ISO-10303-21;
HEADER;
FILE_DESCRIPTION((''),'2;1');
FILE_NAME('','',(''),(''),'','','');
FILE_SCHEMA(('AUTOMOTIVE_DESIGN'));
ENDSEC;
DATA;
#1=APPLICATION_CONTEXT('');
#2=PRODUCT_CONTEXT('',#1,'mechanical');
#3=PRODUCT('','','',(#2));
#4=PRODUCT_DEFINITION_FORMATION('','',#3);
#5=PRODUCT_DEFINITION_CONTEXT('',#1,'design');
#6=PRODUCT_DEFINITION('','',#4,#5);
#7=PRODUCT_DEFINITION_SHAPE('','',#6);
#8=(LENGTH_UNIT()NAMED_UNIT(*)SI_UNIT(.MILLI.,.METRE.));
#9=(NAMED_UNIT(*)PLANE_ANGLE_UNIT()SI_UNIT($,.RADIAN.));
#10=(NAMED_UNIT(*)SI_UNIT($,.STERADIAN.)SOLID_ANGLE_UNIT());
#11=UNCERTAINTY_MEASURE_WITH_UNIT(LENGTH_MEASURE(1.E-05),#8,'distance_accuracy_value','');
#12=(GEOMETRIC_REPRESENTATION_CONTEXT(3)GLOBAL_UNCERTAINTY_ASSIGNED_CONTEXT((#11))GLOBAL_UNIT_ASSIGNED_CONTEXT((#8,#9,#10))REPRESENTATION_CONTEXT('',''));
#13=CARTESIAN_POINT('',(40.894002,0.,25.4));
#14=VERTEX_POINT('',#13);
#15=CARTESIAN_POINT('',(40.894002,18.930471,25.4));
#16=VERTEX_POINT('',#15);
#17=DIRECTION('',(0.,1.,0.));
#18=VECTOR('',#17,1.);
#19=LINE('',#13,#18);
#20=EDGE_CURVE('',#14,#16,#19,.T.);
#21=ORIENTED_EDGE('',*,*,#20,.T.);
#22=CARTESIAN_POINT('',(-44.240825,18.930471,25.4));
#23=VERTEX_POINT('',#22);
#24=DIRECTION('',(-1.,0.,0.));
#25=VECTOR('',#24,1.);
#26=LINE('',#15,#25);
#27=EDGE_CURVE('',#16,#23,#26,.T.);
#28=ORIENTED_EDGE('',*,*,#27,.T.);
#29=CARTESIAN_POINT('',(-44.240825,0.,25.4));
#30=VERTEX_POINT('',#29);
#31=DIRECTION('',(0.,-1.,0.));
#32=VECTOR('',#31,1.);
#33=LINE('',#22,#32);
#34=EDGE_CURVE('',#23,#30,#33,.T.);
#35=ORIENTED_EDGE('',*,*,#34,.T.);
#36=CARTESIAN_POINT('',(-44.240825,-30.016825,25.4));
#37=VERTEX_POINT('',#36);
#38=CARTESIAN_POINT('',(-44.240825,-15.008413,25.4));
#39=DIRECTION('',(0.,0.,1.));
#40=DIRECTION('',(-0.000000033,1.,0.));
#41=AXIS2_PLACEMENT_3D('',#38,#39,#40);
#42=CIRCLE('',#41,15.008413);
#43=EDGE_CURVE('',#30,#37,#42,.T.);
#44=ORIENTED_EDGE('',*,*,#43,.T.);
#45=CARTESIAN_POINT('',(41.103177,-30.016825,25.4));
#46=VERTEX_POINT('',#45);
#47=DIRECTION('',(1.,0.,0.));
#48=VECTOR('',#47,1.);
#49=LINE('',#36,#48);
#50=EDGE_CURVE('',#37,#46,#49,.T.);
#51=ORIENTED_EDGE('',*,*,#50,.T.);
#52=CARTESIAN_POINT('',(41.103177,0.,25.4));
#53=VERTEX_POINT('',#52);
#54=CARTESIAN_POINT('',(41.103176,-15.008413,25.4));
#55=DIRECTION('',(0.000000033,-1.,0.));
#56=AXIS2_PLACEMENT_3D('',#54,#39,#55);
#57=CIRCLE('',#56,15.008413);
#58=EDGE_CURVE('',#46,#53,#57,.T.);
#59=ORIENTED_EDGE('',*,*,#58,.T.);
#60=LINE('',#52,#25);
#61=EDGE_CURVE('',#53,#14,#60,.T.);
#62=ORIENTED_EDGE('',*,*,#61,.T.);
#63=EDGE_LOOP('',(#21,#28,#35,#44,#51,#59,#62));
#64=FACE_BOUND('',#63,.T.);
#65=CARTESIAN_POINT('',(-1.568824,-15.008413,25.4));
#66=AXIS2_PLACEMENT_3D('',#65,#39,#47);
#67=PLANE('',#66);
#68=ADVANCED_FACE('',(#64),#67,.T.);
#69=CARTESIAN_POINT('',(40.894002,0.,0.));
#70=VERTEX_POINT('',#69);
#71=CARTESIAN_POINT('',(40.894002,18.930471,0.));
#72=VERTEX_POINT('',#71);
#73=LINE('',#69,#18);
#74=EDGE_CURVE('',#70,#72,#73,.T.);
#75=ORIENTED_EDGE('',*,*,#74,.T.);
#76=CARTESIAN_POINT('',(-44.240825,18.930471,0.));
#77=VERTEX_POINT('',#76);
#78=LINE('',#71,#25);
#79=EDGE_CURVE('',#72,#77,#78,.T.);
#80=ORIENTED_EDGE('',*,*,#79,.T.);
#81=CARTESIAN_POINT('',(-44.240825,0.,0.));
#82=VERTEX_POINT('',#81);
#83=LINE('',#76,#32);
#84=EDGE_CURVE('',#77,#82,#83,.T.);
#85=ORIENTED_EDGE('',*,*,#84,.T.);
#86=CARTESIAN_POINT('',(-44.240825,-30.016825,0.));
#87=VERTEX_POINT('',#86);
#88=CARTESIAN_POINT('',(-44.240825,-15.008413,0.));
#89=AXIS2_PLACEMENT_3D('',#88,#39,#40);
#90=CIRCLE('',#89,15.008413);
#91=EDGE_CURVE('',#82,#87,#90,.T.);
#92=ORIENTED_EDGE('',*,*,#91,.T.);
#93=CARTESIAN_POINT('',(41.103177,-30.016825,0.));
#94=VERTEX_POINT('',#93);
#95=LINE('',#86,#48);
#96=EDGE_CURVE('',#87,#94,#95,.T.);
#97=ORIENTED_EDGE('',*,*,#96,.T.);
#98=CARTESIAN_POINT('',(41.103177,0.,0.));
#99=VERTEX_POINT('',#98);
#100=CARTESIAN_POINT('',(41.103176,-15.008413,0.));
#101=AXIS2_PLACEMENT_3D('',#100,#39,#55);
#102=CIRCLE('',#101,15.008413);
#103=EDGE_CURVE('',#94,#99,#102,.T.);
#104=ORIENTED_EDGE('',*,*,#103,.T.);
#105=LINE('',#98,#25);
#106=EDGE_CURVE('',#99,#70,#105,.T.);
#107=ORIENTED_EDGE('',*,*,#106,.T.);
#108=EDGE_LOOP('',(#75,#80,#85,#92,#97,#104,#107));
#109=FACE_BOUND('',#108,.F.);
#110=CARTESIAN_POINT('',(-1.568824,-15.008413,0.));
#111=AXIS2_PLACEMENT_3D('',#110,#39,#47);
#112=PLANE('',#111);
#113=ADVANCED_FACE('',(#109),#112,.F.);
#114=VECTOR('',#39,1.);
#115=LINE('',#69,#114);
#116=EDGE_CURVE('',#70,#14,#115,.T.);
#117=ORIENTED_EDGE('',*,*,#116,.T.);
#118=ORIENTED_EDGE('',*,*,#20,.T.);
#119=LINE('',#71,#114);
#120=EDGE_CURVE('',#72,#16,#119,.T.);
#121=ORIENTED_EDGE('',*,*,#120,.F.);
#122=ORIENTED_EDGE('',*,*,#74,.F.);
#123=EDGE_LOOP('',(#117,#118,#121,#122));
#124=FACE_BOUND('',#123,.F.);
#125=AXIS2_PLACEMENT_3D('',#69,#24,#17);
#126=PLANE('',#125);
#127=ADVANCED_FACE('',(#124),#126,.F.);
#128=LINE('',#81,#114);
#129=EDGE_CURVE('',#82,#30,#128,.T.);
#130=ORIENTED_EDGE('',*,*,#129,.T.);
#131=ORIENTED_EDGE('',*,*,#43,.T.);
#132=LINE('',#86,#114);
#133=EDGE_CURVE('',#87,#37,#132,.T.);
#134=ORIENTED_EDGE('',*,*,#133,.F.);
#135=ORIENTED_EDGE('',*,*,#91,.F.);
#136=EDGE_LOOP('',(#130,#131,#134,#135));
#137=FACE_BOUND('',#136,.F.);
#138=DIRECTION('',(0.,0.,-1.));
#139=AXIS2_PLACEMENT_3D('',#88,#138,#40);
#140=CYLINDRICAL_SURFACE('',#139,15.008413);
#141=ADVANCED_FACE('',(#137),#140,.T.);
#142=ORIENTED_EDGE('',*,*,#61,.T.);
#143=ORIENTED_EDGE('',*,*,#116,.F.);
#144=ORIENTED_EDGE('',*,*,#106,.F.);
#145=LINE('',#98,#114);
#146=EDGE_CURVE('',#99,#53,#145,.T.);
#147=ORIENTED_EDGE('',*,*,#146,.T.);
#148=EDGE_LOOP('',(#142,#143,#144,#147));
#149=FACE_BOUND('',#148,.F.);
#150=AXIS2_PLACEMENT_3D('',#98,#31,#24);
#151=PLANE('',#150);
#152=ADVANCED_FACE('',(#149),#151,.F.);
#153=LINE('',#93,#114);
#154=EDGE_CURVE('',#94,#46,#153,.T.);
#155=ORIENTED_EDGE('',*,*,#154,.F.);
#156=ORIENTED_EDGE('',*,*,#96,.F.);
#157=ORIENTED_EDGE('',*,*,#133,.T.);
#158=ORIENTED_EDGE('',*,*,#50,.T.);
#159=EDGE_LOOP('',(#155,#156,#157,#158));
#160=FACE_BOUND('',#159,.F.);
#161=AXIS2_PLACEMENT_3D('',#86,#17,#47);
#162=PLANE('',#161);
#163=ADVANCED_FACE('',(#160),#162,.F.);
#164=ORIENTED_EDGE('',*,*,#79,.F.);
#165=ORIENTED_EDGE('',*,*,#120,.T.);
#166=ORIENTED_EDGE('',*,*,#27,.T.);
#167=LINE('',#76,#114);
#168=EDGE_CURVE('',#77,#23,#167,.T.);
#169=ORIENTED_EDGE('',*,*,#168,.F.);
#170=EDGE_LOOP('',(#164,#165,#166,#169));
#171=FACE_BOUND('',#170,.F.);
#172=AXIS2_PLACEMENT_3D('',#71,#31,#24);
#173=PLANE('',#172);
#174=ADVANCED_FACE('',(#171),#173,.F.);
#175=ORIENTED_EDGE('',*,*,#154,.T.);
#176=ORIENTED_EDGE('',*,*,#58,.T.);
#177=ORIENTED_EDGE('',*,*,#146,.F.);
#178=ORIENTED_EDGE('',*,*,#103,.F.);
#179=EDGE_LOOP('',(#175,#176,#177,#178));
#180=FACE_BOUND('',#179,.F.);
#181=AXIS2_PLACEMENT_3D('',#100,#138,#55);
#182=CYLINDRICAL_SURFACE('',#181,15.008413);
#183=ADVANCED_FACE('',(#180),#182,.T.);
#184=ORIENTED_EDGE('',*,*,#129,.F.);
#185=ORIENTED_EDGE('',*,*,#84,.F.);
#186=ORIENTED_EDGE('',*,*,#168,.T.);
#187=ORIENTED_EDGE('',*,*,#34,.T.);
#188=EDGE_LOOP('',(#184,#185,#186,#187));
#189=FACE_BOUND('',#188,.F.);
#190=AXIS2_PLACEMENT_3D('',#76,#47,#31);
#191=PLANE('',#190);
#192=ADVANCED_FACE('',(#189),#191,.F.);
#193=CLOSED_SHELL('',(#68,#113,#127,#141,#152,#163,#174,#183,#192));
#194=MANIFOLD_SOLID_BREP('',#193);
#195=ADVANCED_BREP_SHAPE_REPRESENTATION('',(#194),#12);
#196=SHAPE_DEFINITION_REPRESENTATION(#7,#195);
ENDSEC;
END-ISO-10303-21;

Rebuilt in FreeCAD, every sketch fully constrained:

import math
import FreeCAD as App
import Part
import Sketcher

V = App.Vector
Q = App.Units.Quantity

doc = App.newDocument("Part")
body = doc.addObject("PartDesign::Body", "Body")

sketch1 = body.newObject("Sketcher::SketchObject", "Sketch")
sketch1.AttachmentSupport = (doc.getObject("XY_Plane"), [""])
sketch1.MapMode = "FlatFace"
sketch1.addGeometry(Part.ArcOfCircle(Part.Circle(V(-44.240825, -15.008413, 0), V(0, 0, 1), 15.008413), math.radians(90.000002), math.radians(269.999998)), False)
sketch1.addGeometry(Part.LineSegment(V(-44.240825, -30.016825, 0), V(41.103177, -30.016825, 0)), False)
sketch1.addGeometry(Part.ArcOfCircle(Part.Circle(V(41.103176, -15.008413, 0), V(0, 0, 1), 15.008413), math.radians(-89.999998), math.radians(89.999998)), False)
sketch1.addGeometry(Part.LineSegment(V(41.103177, 0, 0), V(40.894002, 0, 0)), False)
sketch1.addGeometry(Part.LineSegment(V(40.894002, 0, 0), V(40.894002, 18.930471, 0)), False)
sketch1.addGeometry(Part.LineSegment(V(40.894002, 18.930471, 0), V(-44.240825, 18.930471, 0)), False)
sketch1.addGeometry(Part.LineSegment(V(-44.240825, 18.930471, 0), V(-44.240825, 0, 0)), False)
sketch1.addConstraint(Sketcher.Constraint("Tangent", 0, 2, 1, 1))
sketch1.addConstraint(Sketcher.Constraint("Tangent", 1, 2, 2, 1))
sketch1.addConstraint(Sketcher.Constraint("Tangent", 2, 2, 3, 1))
sketch1.addConstraint(Sketcher.Constraint("Coincident", 3, 2, 4, 1))
sketch1.addConstraint(Sketcher.Constraint("Coincident", 4, 2, 5, 1))
sketch1.addConstraint(Sketcher.Constraint("Coincident", 5, 2, 6, 1))
sketch1.addConstraint(Sketcher.Constraint("Coincident", 6, 2, 0, 1))
sketch1.addConstraint(Sketcher.Constraint("Horizontal", 1))
sketch1.addConstraint(Sketcher.Constraint("Horizontal", 3))
sketch1.addConstraint(Sketcher.Constraint("Vertical", 4))
sketch1.addConstraint(Sketcher.Constraint("Horizontal", 5))
sketch1.addConstraint(Sketcher.Constraint("Vertical", 6))
sketch1.addConstraint(Sketcher.Constraint("Equal", 0, 2))
sketch1.addConstraint(Sketcher.Constraint("PointOnObject", 2, 2, -1))
sketch1.addConstraint(Sketcher.Constraint("Vertical", 0, 2, 5, 2))
sketch1.addConstraint(Sketcher.Constraint("DistanceX", 1, 1, 1, 2, Q("3.3600001 in")))
sketch1.addConstraint(Sketcher.Constraint("DistanceX", -1, 1, 3, 2, Q("1.6100001 in")))
sketch1.addConstraint(Sketcher.Constraint("Radius", 0, Q("15.008413 mm")))
sketch1.addConstraint(Sketcher.Constraint("DistanceY", 4, 1, 4, 2, Q("18.930471 mm")))
sketch1.addConstraint(Sketcher.Constraint("DistanceX", 3, 2, 3, 1, Q("0.209175 mm")))
pad1 = body.newObject("PartDesign::Pad", "Pad")
pad1.Profile = sketch1
pad1.Length = Q("1 in")

doc.recompute()
